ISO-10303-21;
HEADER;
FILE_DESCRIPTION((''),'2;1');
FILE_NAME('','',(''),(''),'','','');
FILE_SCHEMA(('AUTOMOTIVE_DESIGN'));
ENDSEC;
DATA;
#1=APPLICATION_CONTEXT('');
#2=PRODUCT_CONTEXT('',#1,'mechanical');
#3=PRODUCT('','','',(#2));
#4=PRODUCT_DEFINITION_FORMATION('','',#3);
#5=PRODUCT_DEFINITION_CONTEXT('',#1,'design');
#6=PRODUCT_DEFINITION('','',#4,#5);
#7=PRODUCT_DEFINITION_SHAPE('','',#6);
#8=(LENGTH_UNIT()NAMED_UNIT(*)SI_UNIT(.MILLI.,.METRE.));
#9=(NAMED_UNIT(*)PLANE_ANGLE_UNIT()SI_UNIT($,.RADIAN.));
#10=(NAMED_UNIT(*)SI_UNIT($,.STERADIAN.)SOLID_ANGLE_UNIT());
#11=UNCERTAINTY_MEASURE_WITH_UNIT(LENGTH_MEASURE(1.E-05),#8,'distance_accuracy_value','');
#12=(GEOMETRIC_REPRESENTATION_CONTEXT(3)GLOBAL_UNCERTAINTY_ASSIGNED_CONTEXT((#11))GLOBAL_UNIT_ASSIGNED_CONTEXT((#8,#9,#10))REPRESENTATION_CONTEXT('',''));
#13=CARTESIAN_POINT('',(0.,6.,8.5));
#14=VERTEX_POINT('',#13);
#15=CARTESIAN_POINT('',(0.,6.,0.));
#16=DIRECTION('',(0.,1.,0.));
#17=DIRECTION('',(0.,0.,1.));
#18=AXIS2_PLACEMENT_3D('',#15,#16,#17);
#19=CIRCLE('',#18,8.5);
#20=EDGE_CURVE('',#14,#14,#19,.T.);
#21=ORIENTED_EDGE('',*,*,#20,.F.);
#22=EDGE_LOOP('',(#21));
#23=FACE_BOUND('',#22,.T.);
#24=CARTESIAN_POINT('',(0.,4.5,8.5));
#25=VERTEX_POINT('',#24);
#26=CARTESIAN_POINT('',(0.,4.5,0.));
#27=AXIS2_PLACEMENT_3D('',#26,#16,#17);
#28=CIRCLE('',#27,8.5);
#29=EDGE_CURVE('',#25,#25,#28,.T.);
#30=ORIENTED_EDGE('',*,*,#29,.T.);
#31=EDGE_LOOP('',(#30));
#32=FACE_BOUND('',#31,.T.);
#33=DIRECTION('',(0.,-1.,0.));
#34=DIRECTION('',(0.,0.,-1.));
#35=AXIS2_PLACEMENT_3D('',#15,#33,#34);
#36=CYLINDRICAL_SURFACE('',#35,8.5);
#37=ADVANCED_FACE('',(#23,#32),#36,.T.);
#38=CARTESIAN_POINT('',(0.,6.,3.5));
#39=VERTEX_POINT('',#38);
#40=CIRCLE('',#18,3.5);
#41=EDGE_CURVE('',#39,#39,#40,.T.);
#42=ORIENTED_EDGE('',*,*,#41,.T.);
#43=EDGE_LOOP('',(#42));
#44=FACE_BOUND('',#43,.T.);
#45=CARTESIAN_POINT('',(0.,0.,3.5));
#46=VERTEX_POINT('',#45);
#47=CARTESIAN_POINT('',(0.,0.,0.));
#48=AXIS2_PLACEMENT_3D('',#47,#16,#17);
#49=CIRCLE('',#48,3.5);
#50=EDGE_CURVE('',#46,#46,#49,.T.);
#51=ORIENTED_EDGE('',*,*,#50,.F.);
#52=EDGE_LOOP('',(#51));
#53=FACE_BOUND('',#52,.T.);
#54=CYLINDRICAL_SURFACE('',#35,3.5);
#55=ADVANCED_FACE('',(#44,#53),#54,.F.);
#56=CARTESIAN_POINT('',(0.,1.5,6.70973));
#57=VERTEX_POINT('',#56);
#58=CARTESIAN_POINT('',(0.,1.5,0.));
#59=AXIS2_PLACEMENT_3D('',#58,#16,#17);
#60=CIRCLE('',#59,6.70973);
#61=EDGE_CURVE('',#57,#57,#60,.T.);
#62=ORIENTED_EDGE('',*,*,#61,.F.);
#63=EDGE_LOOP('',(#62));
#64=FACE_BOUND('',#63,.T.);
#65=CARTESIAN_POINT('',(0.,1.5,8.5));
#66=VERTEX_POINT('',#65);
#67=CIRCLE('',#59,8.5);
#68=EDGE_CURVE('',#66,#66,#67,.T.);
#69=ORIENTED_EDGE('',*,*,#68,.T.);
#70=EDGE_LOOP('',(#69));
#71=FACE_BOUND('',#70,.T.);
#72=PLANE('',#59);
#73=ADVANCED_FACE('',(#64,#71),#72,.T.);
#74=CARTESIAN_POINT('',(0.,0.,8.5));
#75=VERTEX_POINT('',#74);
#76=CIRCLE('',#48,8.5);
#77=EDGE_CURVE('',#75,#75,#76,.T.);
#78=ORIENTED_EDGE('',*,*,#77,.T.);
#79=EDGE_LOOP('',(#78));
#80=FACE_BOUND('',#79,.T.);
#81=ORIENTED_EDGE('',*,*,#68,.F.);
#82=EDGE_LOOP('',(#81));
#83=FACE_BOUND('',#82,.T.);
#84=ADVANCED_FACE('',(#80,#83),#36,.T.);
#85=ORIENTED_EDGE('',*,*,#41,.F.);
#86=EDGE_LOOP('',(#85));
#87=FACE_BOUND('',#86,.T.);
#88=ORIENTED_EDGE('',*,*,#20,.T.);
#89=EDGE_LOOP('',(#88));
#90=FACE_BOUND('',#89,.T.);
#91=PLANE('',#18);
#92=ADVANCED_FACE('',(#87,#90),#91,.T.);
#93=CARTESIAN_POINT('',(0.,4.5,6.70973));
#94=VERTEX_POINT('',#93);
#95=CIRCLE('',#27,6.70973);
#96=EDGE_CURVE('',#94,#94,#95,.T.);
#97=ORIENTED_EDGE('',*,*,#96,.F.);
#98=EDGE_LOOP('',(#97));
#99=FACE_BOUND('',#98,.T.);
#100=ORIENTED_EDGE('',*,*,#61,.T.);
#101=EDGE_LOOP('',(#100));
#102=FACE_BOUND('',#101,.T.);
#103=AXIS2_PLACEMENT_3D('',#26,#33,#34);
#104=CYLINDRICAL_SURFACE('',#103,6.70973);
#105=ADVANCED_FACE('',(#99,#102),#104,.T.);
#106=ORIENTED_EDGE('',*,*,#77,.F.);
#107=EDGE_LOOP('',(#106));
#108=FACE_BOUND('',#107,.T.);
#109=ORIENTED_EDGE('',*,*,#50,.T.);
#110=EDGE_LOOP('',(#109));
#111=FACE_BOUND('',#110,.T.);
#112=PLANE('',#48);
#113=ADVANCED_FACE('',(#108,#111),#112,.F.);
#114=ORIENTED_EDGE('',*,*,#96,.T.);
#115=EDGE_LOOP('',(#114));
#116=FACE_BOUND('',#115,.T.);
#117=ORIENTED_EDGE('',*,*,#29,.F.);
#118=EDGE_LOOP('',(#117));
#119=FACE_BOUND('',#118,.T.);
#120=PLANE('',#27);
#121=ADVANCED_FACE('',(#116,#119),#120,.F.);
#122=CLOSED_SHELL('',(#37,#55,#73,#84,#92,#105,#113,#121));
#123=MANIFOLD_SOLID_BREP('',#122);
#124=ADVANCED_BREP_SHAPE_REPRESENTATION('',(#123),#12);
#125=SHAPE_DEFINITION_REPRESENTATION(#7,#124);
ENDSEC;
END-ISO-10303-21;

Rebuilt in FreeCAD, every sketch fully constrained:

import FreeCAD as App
import Part
import Sketcher
from FreeCAD import Vector
Q = App.Units.Quantity

doc = App.newDocument("Part")
body = doc.addObject("PartDesign::Body", "Body")

# Sketch on XZ plane
sketch1 = body.newObject("Sketcher::SketchObject", "Sketch")
sketch1.AttachmentSupport = (doc.getObject("XZ_Plane"), [""])
sketch1.MapMode = "FlatFace"
sketch1.addGeometry([
    Part.Circle(Vector(0, 0, 0), Vector(0, 0, 1), 8.5),
    Part.Circle(Vector(0, 0, 0), Vector(0, 0, 1), 3.5),
], False)
sketch1.addConstraint([
    Sketcher.Constraint("Coincident", 0, 3, -1, 1),
    Sketcher.Constraint("Coincident", 1, 3, -1, 1),
    Sketcher.Constraint("Diameter", 0, Q("17 mm")),
    Sketcher.Constraint("Diameter", 1, Q("7 mm")),
])
pad1 = body.newObject("PartDesign::Pad", "Pad")
pad1.Profile = sketch1
pad1.Length = 6
pad1.Reversed = True

# Sketch on XZ plane
sketch2 = body.newObject("Sketcher::SketchObject", "Sketch001")
sketch2.AttachmentSupport = (doc.getObject("XZ_Plane"), [""])
sketch2.MapMode = "FlatFace"
sketch2.AttachmentOffset = App.Placement(Vector(0, 0, -1.5), App.Rotation())
sketch2.addGeometry([
    Part.Circle(Vector(0, 0, 0), Vector(0, 0, 1), 14),
    Part.Circle(Vector(0, 0, 0), Vector(0, 0, 1), 7),
], False)
sketch2.addConstraint([
    Sketcher.Constraint("Coincident", 0, 3, -1, 1),
    Sketcher.Constraint("Coincident", 1, 3, -1, 1),
    Sketcher.Constraint("Diameter", 1, Q("13.419461 mm")),
    Sketcher.Constraint("Diameter", 0, Q("27.780134 mm")),
])
pocket1 = body.newObject("PartDesign::Pocket", "Pocket")
pocket1.Profile = sketch2
pocket1.Length = 3

doc.recompute()
